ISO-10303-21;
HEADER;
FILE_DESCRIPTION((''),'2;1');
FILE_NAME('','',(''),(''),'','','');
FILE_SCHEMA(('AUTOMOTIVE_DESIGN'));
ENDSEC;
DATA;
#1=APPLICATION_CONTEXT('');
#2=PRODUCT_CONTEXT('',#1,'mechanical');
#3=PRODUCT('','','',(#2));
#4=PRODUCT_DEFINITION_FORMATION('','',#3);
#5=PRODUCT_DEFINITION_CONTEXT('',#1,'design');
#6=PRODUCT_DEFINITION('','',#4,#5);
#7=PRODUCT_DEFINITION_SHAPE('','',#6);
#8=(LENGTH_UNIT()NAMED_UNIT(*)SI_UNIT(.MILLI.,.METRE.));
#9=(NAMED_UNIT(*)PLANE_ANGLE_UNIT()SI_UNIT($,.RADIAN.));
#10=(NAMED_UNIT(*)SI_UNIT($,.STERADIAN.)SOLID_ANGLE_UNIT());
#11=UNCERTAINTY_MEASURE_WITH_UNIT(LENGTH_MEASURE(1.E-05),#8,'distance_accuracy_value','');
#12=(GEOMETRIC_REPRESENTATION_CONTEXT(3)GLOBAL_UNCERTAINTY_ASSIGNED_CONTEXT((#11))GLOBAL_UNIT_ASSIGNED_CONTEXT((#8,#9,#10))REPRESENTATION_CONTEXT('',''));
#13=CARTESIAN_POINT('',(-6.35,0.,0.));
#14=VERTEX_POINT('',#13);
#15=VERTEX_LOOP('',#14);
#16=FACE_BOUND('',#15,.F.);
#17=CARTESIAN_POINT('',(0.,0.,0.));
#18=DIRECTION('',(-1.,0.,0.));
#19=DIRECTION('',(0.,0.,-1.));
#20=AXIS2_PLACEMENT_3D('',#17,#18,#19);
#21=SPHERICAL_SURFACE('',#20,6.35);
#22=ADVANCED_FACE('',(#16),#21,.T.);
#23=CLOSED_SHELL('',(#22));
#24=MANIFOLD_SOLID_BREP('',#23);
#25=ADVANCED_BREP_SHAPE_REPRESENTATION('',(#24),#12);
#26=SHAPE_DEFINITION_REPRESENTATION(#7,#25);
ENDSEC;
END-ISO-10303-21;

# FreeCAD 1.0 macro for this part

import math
import FreeCAD as App
import Part
import Sketcher
from FreeCAD import Vector
Q = App.Units.Quantity

doc = App.newDocument("Part")
body = doc.addObject("PartDesign::Body", "Body")

# Sketch on XZ plane
sketch1 = body.newObject("Sketcher::SketchObject", "Sketch")
sketch1.AttachmentSupport = (doc.getObject("XZ_Plane"), [""])
sketch1.MapMode = "FlatFace"
sketch1.addGeometry([
    Part.LineSegment(Vector(-6, 0, 0), Vector(6, 0, 0)),
    Part.ArcOfCircle(Part.Circle(Vector(0, 0, 0), Vector(0, 0, 1), 6), math.radians(180), math.radians(360)),
], False)
sketch1.addConstraint([
    Sketcher.Constraint("Coincident", 0, 1, 1, 1),
    Sketcher.Constraint("Coincident", 1, 2, 0, 2),
    Sketcher.Constraint("Horizontal", 0),
    Sketcher.Constraint("Coincident", 1, 3, -1, 1),
    Sketcher.Constraint("PointOnObject", 0, 1, -1),
    Sketcher.Constraint("Radius", 1, Q("0.25 in")),
])
revolution = body.newObject("PartDesign::Revolution", "Revolution")
revolution.Profile = sketch1
revolution.ReferenceAxis = (sketch1, ["H_Axis"])
revolution.Angle = 360

doc.recompute()
